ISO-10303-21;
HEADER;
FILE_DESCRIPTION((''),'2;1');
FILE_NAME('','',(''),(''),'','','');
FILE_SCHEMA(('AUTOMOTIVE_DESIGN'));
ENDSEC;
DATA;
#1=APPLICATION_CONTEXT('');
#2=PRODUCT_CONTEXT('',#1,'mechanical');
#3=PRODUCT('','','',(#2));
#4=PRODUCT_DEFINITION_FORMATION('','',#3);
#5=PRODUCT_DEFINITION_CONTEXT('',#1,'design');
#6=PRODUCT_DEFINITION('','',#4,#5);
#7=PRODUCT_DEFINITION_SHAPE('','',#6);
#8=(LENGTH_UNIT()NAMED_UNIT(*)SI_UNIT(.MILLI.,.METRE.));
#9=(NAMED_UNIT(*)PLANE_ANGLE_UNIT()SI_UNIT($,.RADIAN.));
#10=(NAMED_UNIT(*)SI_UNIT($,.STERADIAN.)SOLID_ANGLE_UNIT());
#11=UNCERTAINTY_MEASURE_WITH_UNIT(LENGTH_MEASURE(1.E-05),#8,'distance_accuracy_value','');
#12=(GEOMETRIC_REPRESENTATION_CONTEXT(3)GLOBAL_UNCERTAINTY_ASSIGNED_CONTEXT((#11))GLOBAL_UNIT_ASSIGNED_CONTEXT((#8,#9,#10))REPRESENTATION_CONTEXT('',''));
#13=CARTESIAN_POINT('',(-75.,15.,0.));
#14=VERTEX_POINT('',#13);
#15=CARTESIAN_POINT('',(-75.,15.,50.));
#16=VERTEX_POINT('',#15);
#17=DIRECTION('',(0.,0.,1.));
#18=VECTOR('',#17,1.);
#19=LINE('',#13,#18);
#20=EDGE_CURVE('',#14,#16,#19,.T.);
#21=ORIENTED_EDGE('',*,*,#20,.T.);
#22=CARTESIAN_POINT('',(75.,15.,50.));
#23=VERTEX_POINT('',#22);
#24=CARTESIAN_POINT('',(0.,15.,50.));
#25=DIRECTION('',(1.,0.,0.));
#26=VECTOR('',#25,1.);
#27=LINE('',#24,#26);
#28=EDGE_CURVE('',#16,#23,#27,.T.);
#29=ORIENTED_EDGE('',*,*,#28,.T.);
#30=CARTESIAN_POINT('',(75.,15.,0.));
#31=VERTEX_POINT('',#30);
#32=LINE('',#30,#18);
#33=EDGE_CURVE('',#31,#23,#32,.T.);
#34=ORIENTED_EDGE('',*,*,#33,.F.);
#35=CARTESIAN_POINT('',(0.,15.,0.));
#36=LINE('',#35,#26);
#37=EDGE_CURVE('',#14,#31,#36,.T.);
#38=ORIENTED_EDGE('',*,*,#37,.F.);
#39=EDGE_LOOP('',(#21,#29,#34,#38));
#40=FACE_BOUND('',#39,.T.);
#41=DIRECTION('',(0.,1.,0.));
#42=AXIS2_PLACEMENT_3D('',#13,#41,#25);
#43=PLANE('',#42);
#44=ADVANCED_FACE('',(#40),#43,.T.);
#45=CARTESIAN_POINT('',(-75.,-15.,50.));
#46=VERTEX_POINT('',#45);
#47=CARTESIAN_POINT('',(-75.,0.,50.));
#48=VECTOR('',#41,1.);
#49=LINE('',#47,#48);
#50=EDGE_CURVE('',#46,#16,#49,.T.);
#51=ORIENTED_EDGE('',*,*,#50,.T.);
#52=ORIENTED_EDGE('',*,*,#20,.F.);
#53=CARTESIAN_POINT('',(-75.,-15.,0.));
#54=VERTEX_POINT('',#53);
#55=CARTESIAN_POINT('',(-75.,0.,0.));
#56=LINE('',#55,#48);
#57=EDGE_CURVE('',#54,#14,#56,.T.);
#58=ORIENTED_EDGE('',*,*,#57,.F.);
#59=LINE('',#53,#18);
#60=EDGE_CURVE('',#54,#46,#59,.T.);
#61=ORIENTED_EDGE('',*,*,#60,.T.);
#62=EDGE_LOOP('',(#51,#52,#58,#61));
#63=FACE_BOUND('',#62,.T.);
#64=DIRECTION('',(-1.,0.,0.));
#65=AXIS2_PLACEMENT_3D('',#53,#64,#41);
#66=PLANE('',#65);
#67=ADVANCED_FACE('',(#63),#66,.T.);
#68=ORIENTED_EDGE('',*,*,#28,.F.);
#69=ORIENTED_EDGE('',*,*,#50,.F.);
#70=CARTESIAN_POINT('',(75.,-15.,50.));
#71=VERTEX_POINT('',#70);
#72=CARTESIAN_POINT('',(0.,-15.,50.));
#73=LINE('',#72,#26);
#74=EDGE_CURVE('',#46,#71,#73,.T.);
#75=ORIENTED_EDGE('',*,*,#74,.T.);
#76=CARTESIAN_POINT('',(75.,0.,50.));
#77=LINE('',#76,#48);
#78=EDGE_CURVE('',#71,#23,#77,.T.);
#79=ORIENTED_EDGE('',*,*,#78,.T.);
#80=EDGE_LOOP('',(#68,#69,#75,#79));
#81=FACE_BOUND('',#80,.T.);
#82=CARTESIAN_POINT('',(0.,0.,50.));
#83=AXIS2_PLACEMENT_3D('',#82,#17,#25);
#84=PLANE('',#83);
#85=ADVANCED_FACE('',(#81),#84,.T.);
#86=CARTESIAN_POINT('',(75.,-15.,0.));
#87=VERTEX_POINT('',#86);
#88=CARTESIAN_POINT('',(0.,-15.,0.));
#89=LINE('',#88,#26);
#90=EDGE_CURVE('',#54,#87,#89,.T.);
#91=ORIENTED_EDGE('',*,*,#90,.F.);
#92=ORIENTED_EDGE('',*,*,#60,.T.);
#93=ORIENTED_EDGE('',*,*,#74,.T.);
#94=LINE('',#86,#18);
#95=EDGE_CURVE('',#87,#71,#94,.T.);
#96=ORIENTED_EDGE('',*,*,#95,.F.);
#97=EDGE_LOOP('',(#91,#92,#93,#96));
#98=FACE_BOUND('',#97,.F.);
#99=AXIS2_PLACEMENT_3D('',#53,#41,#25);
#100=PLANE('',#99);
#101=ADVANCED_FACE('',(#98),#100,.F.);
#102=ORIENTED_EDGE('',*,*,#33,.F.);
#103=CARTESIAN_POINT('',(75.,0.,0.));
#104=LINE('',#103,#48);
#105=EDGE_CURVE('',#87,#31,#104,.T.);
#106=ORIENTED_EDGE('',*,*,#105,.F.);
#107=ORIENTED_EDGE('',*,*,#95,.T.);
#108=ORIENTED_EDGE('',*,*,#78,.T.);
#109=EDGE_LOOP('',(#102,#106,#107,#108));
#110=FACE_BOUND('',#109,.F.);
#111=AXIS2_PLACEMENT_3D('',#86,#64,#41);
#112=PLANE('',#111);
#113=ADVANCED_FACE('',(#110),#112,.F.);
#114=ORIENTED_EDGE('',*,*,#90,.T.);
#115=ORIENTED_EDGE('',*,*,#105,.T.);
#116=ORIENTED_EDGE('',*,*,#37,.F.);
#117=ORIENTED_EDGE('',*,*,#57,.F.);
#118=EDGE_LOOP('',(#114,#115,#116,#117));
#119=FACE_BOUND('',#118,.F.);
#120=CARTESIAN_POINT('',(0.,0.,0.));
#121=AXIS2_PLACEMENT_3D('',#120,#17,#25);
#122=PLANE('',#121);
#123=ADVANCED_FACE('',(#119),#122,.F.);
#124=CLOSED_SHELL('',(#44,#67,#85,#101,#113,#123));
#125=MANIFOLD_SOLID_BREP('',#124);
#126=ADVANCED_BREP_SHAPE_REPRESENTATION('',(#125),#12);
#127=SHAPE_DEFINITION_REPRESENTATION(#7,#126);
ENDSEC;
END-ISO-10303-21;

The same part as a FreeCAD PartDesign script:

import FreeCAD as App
import Part
import Sketcher
from FreeCAD import Vector
Q = App.Units.Quantity

doc = App.newDocument("Part")
body = doc.addObject("PartDesign::Body", "Body")

sketch1 = doc.addObject("Sketcher::SketchObject", "Sketch")
body.addObject(sketch1)
sketch1.AttachmentSupport = (doc.XY_Plane, [""])
sketch1.MapMode = "FlatFace"
sketch1.addGeometry([
    Part.LineSegment(Vector(-75, 15, 0), Vector(-75, -15, 0)),
    Part.LineSegment(Vector(-75, -15, 0), Vector(75, -15, 0)),
    Part.LineSegment(Vector(75, -15, 0), Vector(75, 15, 0)),
    Part.LineSegment(Vector(75, 15, 0), Vector(-75, 15, 0)),
], False)
sketch1.addConstraint([
    Sketcher.Constraint("Coincident", 0, 2, 1, 1),
    Sketcher.Constraint("Coincident", 1, 2, 2, 1),
    Sketcher.Constraint("Coincident", 2, 2, 3, 1),
    Sketcher.Constraint("Coincident", 3, 2, 0, 1),
    Sketcher.Constraint("Vertical", 0),
    Sketcher.Constraint("Horizontal", 1),
    Sketcher.Constraint("Vertical", 2),
    Sketcher.Constraint("Horizontal", 3),
    Sketcher.Constraint("Symmetric", 0, 2, 2, 2, -1, 1),
    Sketcher.Constraint("DistanceX", 1, 1, 1, 2, Q("150 mm")),
    Sketcher.Constraint("DistanceY", 0, 2, 0, 1, Q("30 mm")),
])
pad1 = doc.addObject("PartDesign::Pad", "Pad")
body.addObject(pad1)
pad1.Profile = sketch1
pad1.Length = 50

doc.recompute()
